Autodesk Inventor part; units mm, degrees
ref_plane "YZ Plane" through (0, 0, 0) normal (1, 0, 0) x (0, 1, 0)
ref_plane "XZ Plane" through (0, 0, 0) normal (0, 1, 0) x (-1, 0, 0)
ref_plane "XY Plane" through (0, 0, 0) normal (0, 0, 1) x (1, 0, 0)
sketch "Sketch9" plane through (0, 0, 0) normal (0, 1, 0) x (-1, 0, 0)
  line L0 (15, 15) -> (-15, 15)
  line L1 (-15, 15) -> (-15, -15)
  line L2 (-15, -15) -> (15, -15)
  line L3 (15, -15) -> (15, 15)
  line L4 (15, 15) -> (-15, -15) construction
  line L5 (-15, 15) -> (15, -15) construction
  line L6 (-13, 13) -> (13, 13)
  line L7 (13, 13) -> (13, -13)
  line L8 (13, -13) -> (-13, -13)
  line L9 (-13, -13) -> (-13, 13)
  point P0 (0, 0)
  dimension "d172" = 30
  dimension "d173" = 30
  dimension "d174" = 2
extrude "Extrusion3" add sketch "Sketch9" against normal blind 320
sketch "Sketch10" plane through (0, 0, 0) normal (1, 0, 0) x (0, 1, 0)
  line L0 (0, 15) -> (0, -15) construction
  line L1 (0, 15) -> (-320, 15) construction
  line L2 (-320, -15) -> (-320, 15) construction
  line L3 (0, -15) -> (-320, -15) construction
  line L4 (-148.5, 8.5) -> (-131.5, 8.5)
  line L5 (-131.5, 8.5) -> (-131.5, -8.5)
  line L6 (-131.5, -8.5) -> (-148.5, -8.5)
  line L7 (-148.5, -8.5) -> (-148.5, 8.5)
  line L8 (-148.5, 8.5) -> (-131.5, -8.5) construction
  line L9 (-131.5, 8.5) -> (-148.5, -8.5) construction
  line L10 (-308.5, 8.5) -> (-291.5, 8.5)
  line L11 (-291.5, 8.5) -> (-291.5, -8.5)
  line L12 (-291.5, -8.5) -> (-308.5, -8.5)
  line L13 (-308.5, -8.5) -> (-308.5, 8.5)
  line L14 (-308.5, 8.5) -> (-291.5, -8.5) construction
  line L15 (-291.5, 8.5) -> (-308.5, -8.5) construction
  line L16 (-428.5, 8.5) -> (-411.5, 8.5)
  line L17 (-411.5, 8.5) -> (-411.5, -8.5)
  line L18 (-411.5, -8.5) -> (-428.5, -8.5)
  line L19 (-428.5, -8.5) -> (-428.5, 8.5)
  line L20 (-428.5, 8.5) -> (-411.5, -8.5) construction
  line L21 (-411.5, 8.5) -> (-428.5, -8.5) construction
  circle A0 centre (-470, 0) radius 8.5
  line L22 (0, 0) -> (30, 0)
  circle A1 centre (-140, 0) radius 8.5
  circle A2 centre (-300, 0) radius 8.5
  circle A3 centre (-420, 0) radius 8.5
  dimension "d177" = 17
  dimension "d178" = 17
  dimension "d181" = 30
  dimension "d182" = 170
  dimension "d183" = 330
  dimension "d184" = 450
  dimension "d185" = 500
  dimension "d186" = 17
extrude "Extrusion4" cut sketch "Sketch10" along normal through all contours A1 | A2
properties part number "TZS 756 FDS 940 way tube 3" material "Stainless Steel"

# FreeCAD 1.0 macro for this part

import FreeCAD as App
import Part
import Sketcher

V = App.Vector
Q = App.Units.Quantity


def add_polygon(sketch, points):
    """Adds a closed chain of lines whose ends are joined by coincident constraints."""
    first, n = sketch.GeometryCount, len(points)
    for a, b in zip(points, points[1:] + points[:1]):
        sketch.addGeometry(Part.LineSegment(App.Vector(*a, 0), App.Vector(*b, 0)), False)
    for i in range(n):
        sketch.addConstraint(Sketcher.Constraint("Coincident", first + i, 2, first + (i + 1) % n, 1))

doc = App.newDocument("Part")
body = doc.addObject("PartDesign::Body", "Body")

# Sketch on XZ plane
sketch1 = body.newObject("Sketcher::SketchObject", "Sketch")
sketch1.AttachmentSupport = (doc.getObject("XZ_Plane"), [""])
sketch1.MapMode = "FlatFace"
add_polygon(sketch1, [(-15, -15), (-15, 15), (15, 15), (15, -15)])  # lines 0-3
add_polygon(sketch1, [(13, -13), (13, 13), (-13, 13), (-13, -13)])  # lines 4-7
sketch1.addConstraint([
    Sketcher.Constraint("Vertical", 0),
    Sketcher.Constraint("Horizontal", 1),
    Sketcher.Constraint("Vertical", 2),
    Sketcher.Constraint("Horizontal", 3),
    Sketcher.Constraint("Vertical", 4),
    Sketcher.Constraint("Horizontal", 5),
    Sketcher.Constraint("Vertical", 6),
    Sketcher.Constraint("Horizontal", 7),
    Sketcher.Constraint("Symmetric", 0, 2, 2, 2, -1, 1),
    Sketcher.Constraint("Symmetric", 4, 2, 6, 2, -1, 1),
    Sketcher.Constraint("Equal", 3, 0),
    Sketcher.Constraint("Equal", 7, 4),
    Sketcher.Constraint("DistanceX", 1, 1, 1, 2, Q("30 mm")),
    Sketcher.Constraint("DistanceX", 4, 2, 1, 2, Q("2 mm")),
])
pad1 = body.newObject("PartDesign::Pad", "Pad")
pad1.Profile = sketch1
pad1.Length = 320

# Sketch on YZ plane
sketch2 = body.newObject("Sketcher::SketchObject", "Sketch001")
sketch2.AttachmentSupport = (doc.getObject("YZ_Plane"), [""])
sketch2.MapMode = "FlatFace"
sketch2.addGeometry([
    Part.Circle(V(-140, 0, 0), V(0, 0, 1), 8.5),
    Part.Circle(V(-300, 0, 0), V(0, 0, 1), 8.5),
], False)
sketch2.addConstraint([
    Sketcher.Constraint("Equal", 0, 1),
    Sketcher.Constraint("PointOnObject", 0, 3, -1),
    Sketcher.Constraint("PointOnObject", 1, 3, -1),
    Sketcher.Constraint("Diameter", 0, Q("17 mm")),
    Sketcher.Constraint("DistanceX", 0, 3, -1, 1, Q("140 mm")),
    Sketcher.Constraint("DistanceX", 1, 3, -1, 1, Q("300 mm")),
])
pocket1 = body.newObject("PartDesign::Pocket", "Pocket")
pocket1.Profile = sketch2
pocket1.Type = "ThroughAll"
pocket1.Reversed = True

doc.recompute()
